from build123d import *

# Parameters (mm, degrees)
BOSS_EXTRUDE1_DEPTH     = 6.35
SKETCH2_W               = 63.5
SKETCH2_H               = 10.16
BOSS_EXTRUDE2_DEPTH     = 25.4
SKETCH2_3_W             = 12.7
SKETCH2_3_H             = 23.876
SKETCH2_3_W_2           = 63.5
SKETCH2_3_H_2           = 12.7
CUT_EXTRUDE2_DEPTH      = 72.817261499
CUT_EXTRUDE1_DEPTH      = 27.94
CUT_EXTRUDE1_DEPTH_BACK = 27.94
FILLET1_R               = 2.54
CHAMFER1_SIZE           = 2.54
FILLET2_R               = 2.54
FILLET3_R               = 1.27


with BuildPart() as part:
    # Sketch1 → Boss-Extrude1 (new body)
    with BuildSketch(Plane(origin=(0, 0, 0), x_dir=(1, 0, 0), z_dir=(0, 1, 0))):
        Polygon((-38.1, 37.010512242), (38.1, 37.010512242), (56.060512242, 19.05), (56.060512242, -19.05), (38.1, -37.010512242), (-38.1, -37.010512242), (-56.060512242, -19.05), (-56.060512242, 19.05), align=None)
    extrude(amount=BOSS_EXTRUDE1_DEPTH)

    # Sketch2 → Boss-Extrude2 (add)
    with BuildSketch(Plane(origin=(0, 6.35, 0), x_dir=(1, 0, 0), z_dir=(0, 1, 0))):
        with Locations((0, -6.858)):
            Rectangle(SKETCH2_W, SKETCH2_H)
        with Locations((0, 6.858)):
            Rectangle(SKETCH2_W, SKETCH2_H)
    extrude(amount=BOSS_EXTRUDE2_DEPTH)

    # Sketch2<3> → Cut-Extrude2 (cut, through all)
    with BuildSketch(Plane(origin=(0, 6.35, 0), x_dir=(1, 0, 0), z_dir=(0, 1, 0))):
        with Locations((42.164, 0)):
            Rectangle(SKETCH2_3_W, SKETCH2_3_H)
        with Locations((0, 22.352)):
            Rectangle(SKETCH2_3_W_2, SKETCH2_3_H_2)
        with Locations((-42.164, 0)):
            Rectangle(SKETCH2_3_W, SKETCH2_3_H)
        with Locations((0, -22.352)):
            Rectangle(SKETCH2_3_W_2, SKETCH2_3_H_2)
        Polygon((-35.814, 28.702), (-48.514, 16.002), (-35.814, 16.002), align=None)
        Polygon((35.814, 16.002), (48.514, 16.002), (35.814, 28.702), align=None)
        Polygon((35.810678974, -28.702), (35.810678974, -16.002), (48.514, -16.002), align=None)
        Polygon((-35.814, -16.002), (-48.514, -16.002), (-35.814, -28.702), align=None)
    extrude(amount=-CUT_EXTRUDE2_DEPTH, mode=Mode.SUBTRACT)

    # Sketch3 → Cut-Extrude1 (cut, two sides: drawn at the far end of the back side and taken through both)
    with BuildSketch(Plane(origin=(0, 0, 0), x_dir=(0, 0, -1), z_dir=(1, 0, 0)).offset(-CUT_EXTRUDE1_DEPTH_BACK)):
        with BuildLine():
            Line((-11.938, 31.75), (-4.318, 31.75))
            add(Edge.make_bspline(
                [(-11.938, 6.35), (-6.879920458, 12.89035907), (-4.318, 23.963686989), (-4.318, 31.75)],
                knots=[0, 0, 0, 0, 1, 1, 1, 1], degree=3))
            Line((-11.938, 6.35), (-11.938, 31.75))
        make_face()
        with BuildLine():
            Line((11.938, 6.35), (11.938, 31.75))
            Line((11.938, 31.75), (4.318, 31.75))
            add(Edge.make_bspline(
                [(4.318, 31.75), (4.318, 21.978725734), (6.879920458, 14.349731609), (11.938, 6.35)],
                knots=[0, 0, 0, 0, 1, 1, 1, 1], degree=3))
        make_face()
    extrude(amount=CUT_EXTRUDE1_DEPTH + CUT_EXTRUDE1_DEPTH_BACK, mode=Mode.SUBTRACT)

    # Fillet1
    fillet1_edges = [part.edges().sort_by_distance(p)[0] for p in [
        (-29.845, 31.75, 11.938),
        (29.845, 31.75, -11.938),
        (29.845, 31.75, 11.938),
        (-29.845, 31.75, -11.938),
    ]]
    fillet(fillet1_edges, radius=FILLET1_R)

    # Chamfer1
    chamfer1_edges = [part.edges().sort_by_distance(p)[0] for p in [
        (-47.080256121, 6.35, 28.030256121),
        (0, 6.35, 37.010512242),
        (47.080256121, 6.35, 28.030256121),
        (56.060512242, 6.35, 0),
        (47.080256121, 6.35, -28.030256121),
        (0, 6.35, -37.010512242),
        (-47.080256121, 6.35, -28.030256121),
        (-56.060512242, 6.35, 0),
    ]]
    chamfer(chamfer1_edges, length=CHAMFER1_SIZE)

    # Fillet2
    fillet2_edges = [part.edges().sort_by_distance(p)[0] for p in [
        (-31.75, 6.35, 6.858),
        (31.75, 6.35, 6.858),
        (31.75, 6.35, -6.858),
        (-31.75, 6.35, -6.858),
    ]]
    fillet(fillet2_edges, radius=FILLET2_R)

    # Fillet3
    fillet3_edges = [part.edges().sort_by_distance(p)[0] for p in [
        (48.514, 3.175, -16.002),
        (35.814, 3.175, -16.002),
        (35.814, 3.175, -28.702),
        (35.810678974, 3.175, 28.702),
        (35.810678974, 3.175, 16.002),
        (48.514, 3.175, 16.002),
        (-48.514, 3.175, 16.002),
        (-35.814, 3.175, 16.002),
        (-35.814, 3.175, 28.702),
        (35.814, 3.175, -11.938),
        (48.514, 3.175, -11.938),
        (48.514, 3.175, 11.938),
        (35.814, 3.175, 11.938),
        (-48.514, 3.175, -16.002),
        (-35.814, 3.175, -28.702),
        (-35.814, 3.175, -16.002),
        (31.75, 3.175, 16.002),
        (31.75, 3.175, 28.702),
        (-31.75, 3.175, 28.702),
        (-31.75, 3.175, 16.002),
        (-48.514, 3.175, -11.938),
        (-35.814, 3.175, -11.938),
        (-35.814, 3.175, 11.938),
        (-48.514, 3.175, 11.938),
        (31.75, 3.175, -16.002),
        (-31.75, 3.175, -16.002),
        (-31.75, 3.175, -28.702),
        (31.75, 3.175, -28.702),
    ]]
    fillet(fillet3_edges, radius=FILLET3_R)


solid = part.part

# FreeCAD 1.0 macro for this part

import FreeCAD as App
import Part
import Sketcher
Q = App.Units.Quantity


def edges_at(feature, points):
    """Names of the edges that pass closest to the given points."""
    edges = feature.Shape.Edges
    near = lambda p: min(range(len(edges)), key=lambda i: edges[i].distToShape(Part.Vertex(*p))[0])
    return sorted({f"Edge{near(p) + 1}" for p in points})

doc = App.newDocument("Part")
body = doc.addObject("PartDesign::Body", "Body")

# Sketch on XZ plane
sketch1 = body.newObject("Sketcher::SketchObject", "Sketch")
sketch1.AttachmentSupport = (doc.getObject("XZ_Plane"), [""])
sketch1.MapMode = "FlatFace"
sketch1.addGeometry([
    Part.LineSegment(App.Vector(38, -37, 0), App.Vector(-38, -37, 0)),  # 0
    Part.LineSegment(App.Vector(-38, -37, 0), App.Vector(-56, -19, 0)),  # 1
    Part.LineSegment(App.Vector(-56, -19, 0), App.Vector(-56, 19, 0)),  # 2
    Part.LineSegment(App.Vector(-56, 19, 0), App.Vector(-38, 37, 0)),  # 3
    Part.LineSegment(App.Vector(-38, 37, 0), App.Vector(38, 37, 0)),  # 4
    Part.LineSegment(App.Vector(38, 37, 0), App.Vector(56, 19, 0)),  # 5
    Part.LineSegment(App.Vector(56, 19, 0), App.Vector(56, -19, 0)),  # 6
    Part.LineSegment(App.Vector(56, -19, 0), App.Vector(38, -37, 0)),  # 7
], False)
sketch1.addConstraint([
    Sketcher.Constraint("Coincident", 0, 2, 1, 1),
    Sketcher.Constraint("Coincident", 1, 2, 2, 1),
    Sketcher.Constraint("Coincident", 2, 2, 3, 1),
    Sketcher.Constraint("Coincident", 3, 2, 4, 1),
    Sketcher.Constraint("Coincident", 4, 2, 5, 1),
    Sketcher.Constraint("Coincident", 5, 2, 6, 1),
    Sketcher.Constraint("Coincident", 6, 2, 7, 1),
    Sketcher.Constraint("Coincident", 7, 2, 0, 1),
    Sketcher.Constraint("Horizontal", 0),
    Sketcher.Constraint("Vertical", 2),
    Sketcher.Constraint("Horizontal", 4),
    Sketcher.Constraint("Vertical", 6),
    Sketcher.Constraint("Symmetric", 0, 2, 4, 2, -1, 1),
    Sketcher.Constraint("Symmetric", 1, 2, 5, 2, -1, 1),
    Sketcher.Constraint("Perpendicular", 1, 3),
    Sketcher.Constraint("Perpendicular", 5, 7),
    Sketcher.Constraint("Horizontal", 2, 2, 5, 2),
    Sketcher.Constraint("Horizontal", 1, 2, 6, 2),
    Sketcher.Constraint("Vertical", 0, 2, 3, 2),
    Sketcher.Constraint("DistanceX", 0, 2, 0, 1, Q("3 in")),
    Sketcher.Constraint("Distance", 1, Q("1 in")),
    Sketcher.Constraint("DistanceY", 2, 1, 2, 2, Q("1.5 in")),
])
pad1 = body.newObject("PartDesign::Pad", "Pad")
pad1.Profile = sketch1
pad1.Length = Q("0.25 in")
pad1.Reversed = True

# Sketch on XZ plane
sketch2 = body.newObject("Sketcher::SketchObject", "Sketch001")
sketch2.AttachmentSupport = (doc.getObject("XZ_Plane"), [""])
sketch2.MapMode = "FlatFace"
sketch2.AttachmentOffset = App.Placement(App.Vector(0, 0, -0.25 * 25.4), App.Rotation())
sketch2.addGeometry([
    Part.LineSegment(App.Vector(-32, 2, 0), App.Vector(-32, 12, 0)),  # 0
    Part.LineSegment(App.Vector(-32, 12, 0), App.Vector(32, 12, 0)),  # 1
    Part.LineSegment(App.Vector(32, 12, 0), App.Vector(32, 2, 0)),  # 2
    Part.LineSegment(App.Vector(32, 2, 0), App.Vector(-32, 2, 0)),  # 3
    Part.LineSegment(App.Vector(-32, -12, 0), App.Vector(-32, -2, 0)),  # 4
    Part.LineSegment(App.Vector(-32, -2, 0), App.Vector(32, -2, 0)),  # 5
    Part.LineSegment(App.Vector(32, -2, 0), App.Vector(32, -12, 0)),  # 6
    Part.LineSegment(App.Vector(32, -12, 0), App.Vector(-32, -12, 0)),  # 7
], False)
sketch2.addConstraint([
    Sketcher.Constraint("Coincident", 0, 2, 1, 1),
    Sketcher.Constraint("Coincident", 1, 2, 2, 1),
    Sketcher.Constraint("Coincident", 2, 2, 3, 1),
    Sketcher.Constraint("Coincident", 3, 2, 0, 1),
    Sketcher.Constraint("Coincident", 4, 2, 5, 1),
    Sketcher.Constraint("Coincident", 5, 2, 6, 1),
    Sketcher.Constraint("Coincident", 6, 2, 7, 1),
    Sketcher.Constraint("Coincident", 7, 2, 4, 1),
    Sketcher.Constraint("Vertical", 0),
    Sketcher.Constraint("Horizontal", 1),
    Sketcher.Constraint("Vertical", 2),
    Sketcher.Constraint("Horizontal", 3),
    Sketcher.Constraint("Vertical", 4),
    Sketcher.Constraint("Horizontal", 5),
    Sketcher.Constraint("Vertical", 6),
    Sketcher.Constraint("Horizontal", 7),
    Sketcher.Constraint("Symmetric", 2, 2, 4, 2, -1, 1),
    Sketcher.Constraint("Symmetric", 0, 2, 6, 2, -1, 1),
    Sketcher.Constraint("Vertical", 3, 2, 4, 2),
    Sketcher.Constraint("DistanceX", 1, 1, 1, 2, Q("2.5 in")),
    Sketcher.Constraint("DistanceY", 0, 1, 0, 2, Q("0.4 in")),
    Sketcher.Constraint("DistanceY", -1, 1, 0, 2, Q("0.47 in")),
])
pad2 = body.newObject("PartDesign::Pad", "Pad001")
pad2.Profile = sketch2
pad2.Length = Q("1 in")
pad2.Reversed = True

# Sketch on XZ plane
sketch3 = body.newObject("Sketcher::SketchObject", "Sketch002")
sketch3.AttachmentSupport = (doc.getObject("XZ_Plane"), [""])
sketch3.MapMode = "FlatFace"
sketch3.AttachmentOffset = App.Placement(App.Vector(0, 0, -0.25 * 25.4), App.Rotation())
sketch3.addGeometry([
    Part.LineSegment(App.Vector(36, -12, 0), App.Vector(36, 12, 0)),  # 0
    Part.LineSegment(App.Vector(36, 12, 0), App.Vector(49, 12, 0)),  # 1
    Part.LineSegment(App.Vector(49, 12, 0), App.Vector(49, -12, 0)),  # 2
    Part.LineSegment(App.Vector(49, -12, 0), App.Vector(36, -12, 0)),  # 3
    Part.LineSegment(App.Vector(-32, -29, 0), App.Vector(-32, -16, 0)),  # 4
    Part.LineSegment(App.Vector(-32, -16, 0), App.Vector(32, -16, 0)),  # 5
    Part.LineSegment(App.Vector(32, -16, 0), App.Vector(32, -29, 0)),  # 6
    Part.LineSegment(App.Vector(32, -29, 0), App.Vector(-32, -29, 0)),  # 7
    Part.LineSegment(App.Vector(-49, -12, 0), App.Vector(-49, 12, 0)),  # 8
    Part.LineSegment(App.Vector(-49, 12, 0), App.Vector(-36, 12, 0)),  # 9
    Part.LineSegment(App.Vector(-36, 12, 0), App.Vector(-36, -12, 0)),  # 10
    Part.LineSegment(App.Vector(-36, -12, 0), App.Vector(-49, -12, 0)),  # 11
    Part.LineSegment(App.Vector(-32, 16, 0), App.Vector(-32, 29, 0)),  # 12
    Part.LineSegment(App.Vector(-32, 29, 0), App.Vector(32, 29, 0)),  # 13
    Part.LineSegment(App.Vector(32, 29, 0), App.Vector(32, 16, 0)),  # 14
    Part.LineSegment(App.Vector(32, 16, 0), App.Vector(-32, 16, 0)),  # 15
    Part.LineSegment(App.Vector(-36, -29, 0), App.Vector(-49, -16, 0)),  # 16
    Part.LineSegment(App.Vector(-49, -16, 0), App.Vector(-36, -16, 0)),  # 17
    Part.LineSegment(App.Vector(-36, -16, 0), App.Vector(-36, -29, 0)),  # 18
    Part.LineSegment(App.Vector(36, -16, 0), App.Vector(49, -16, 0)),  # 19
    Part.LineSegment(App.Vector(49, -16, 0), App.Vector(36, -29, 0)),  # 20
    Part.LineSegment(App.Vector(36, -29, 0), App.Vector(36, -16, 0)),  # 21
    Part.LineSegment(App.Vector(36, 16, 0), App.Vector(36, 29, 0)),  # 22
    Part.LineSegment(App.Vector(36, 29, 0), App.Vector(49, 16, 0)),  # 23
    Part.LineSegment(App.Vector(49, 16, 0), App.Vector(36, 16, 0)),  # 24
    Part.LineSegment(App.Vector(-36, 16, 0), App.Vector(-49, 16, 0)),  # 25
    Part.LineSegment(App.Vector(-49, 16, 0), App.Vector(-36, 29, 0)),  # 26
    Part.LineSegment(App.Vector(-36, 29, 0), App.Vector(-36, 16, 0)),  # 27
], False)
sketch3.addConstraint([
    Sketcher.Constraint("Coincident", 0, 2, 1, 1),
    Sketcher.Constraint("Coincident", 1, 2, 2, 1),
    Sketcher.Constraint("Coincident", 2, 2, 3, 1),
    Sketcher.Constraint("Coincident", 3, 2, 0, 1),
    Sketcher.Constraint("Coincident", 4, 2, 5, 1),
    Sketcher.Constraint("Coincident", 5, 2, 6, 1),
    Sketcher.Constraint("Coincident", 6, 2, 7, 1),
    Sketcher.Constraint("Coincident", 7, 2, 4, 1),
    Sketcher.Constraint("Coincident", 8, 2, 9, 1),
    Sketcher.Constraint("Coincident", 9, 2, 10, 1),
    Sketcher.Constraint("Coincident", 10, 2, 11, 1),
    Sketcher.Constraint("Coincident", 11, 2, 8, 1),
    Sketcher.Constraint("Coincident", 12, 2, 13, 1),
    Sketcher.Constraint("Coincident", 13, 2, 14, 1),
    Sketcher.Constraint("Coincident", 14, 2, 15, 1),
    Sketcher.Constraint("Coincident", 15, 2, 12, 1),
    Sketcher.Constraint("Coincident", 16, 2, 17, 1),
    Sketcher.Constraint("Coincident", 17, 2, 18, 1),
    Sketcher.Constraint("Coincident", 18, 2, 16, 1),
    Sketcher.Constraint("Coincident", 19, 2, 20, 1),
    Sketcher.Constraint("Coincident", 20, 2, 21, 1),
    Sketcher.Constraint("Coincident", 21, 2, 19, 1),
    Sketcher.Constraint("Coincident", 22, 2, 23, 1),
    Sketcher.Constraint("Coincident", 23, 2, 24, 1),
    Sketcher.Constraint("Coincident", 24, 2, 22, 1),
    Sketcher.Constraint("Coincident", 25, 2, 26, 1),
    Sketcher.Constraint("Coincident", 26, 2, 27, 1),
    Sketcher.Constraint("Coincident", 27, 2, 25, 1),
    Sketcher.Constraint("Vertical", 0),
    Sketcher.Constraint("Horizontal", 1),
    Sketcher.Constraint("Vertical", 2),
    Sketcher.Constraint("Horizontal", 3),
    Sketcher.Constraint("Vertical", 4),
    Sketcher.Constraint("Horizontal", 5),
    Sketcher.Constraint("Vertical", 6),
    Sketcher.Constraint("Horizontal", 7),
    Sketcher.Constraint("Vertical", 8),
    Sketcher.Constraint("Horizontal", 9),
    Sketcher.Constraint("Vertical", 10),
    Sketcher.Constraint("Horizontal", 11),
    Sketcher.Constraint("Vertical", 12),
    Sketcher.Constraint("Horizontal", 13),
    Sketcher.Constraint("Vertical", 14),
    Sketcher.Constraint("Horizontal", 15),
    Sketcher.Constraint("Horizontal", 17),
    Sketcher.Constraint("Vertical", 18),
    Sketcher.Constraint("Horizontal", 19),
    Sketcher.Constraint("Vertical", 21),
    Sketcher.Constraint("Vertical", 22),
    Sketcher.Constraint("Horizontal", 24),
    Sketcher.Constraint("Horizontal", 25),
    Sketcher.Constraint("Vertical", 27),
    Sketcher.Constraint("Symmetric", 2, 2, 8, 2, -1, 1),
    Sketcher.Constraint("Symmetric", 0, 2, 10, 2, -1, 1),
    Sketcher.Constraint("Symmetric", 6, 2, 12, 2, -1, 1),
    Sketcher.Constraint("Symmetric", 4, 2, 14, 2, -1, 1),
    Sketcher.Constraint("Symmetric", 16, 2, 23, 2, -1, 1),
    Sketcher.Constraint("Symmetric", 19, 2, 25, 2, -1, 1),
    Sketcher.Constraint("Symmetric", 20, 2, 26, 2, -1, 1),
    Sketcher.Constraint("Symmetric", 16, 2, 19, 2, -2),
    Sketcher.Constraint("Symmetric", 18, 2, 20, 2, -2),
    Sketcher.Constraint("Perpendicular", 16, 20),
    Sketcher.Constraint("Horizontal", 1, 2, 8, 2),
    Sketcher.Constraint("Horizontal", 5, 2, 16, 2),
    Sketcher.Constraint("Horizontal", 7, 2, 18, 2),
    Sketcher.Constraint("Horizontal", 13, 2, 22, 2),
    Sketcher.Constraint("Vertical", 7, 2, 12, 2),
    Sketcher.Constraint("Vertical", 11, 2, 16, 2),
    Sketcher.Constraint("Vertical", 10, 2, 17, 2),
    Sketcher.Constraint("DistanceX", 1, 1, 1, 2, Q("0.5 in")),
    Sketcher.Constraint("DistanceX", 5, 1, 5, 2, Q("2.5 in")),
    Sketcher.Constraint("DistanceY", 0, 1, 0, 2, Q("0.94 in")),
    Sketcher.Constraint("DistanceY", 4, 2, 0, 2, Q("1.1 in")),
    Sketcher.Constraint("DistanceX", -1, 1, 0, 2, Q("1.41 in")),
    Sketcher.Constraint("DistanceX", 24, 2, 24, 1, Q("12.703321 mm")),
])
pocket1 = body.newObject("PartDesign::Pocket", "Pocket")
pocket1.Profile = sketch3
pocket1.Type = "ThroughAll"
pocket1.Reversed = True

# Sketch on YZ plane
sketch4 = body.newObject("Sketcher::SketchObject", "Sketch003")
sketch4.AttachmentSupport = (doc.getObject("YZ_Plane"), [""])
sketch4.MapMode = "FlatFace"
sketch4.addGeometry([
    Part.LineSegment(App.Vector(31.75, 4.318, 0), App.Vector(31.75, 11.938, 0)),  # 0
    Part.LineSegment(App.Vector(31.75, 11.938, 0), App.Vector(6.35, 11.938, 0)),  # 1
    Part.BSplineCurve([App.Vector(6.35, 11.938, 0), App.Vector(12.890359, 6.87992, 0), App.Vector(23.963687, 4.318, 0), App.Vector(31.75, 4.318, 0)], [4, 4], [0, 1], False, 3, [1, 1, 1, 1], False),  # 2
    Part.LineSegment(App.Vector(6.35, -11.938, 0), App.Vector(31.75, -11.938, 0)),  # 3
    Part.LineSegment(App.Vector(31.75, -11.938, 0), App.Vector(31.75, -4.318, 0)),  # 4
    Part.BSplineCurve([App.Vector(31.75, -4.318, 0), App.Vector(21.978726, -4.318, 0), App.Vector(14.349732, -6.87992, 0), App.Vector(6.35, -11.938, 0)], [4, 4], [0, 1], False, 3, [1, 1, 1, 1], False),  # 5
], False)
sketch4.addConstraint([
    Sketcher.Constraint("Block", 2),
    Sketcher.Constraint("Block", 5),
    Sketcher.Constraint("Coincident", 0, 2, 1, 1),
    Sketcher.Constraint("Coincident", 1, 2, 2, 1),
    Sketcher.Constraint("Coincident", 2, 2, 0, 1),
    Sketcher.Constraint("Coincident", 3, 2, 4, 1),
    Sketcher.Constraint("Coincident", 4, 2, 5, 1),
    Sketcher.Constraint("Coincident", 5, 2, 3, 1),
    Sketcher.Constraint("Vertical", 0),
    Sketcher.Constraint("Horizontal", 1),
    Sketcher.Constraint("Horizontal", 3),
    Sketcher.Constraint("Vertical", 4),
])
pocket2 = body.newObject("PartDesign::Pocket", "Pocket001")
pocket2.Profile = sketch4
pocket2.Type = "TwoLengths"
pocket2.Length = Q("1.1 in")
pocket2.Length2 = Q("1.1 in")
pocket2.Reversed = True
doc.recompute()

fillet = body.newObject("PartDesign::Fillet", "Fillet")
fillet.Base = (pocket2, edges_at(pocket2, [
    (-29.845, 31.75, 11.938),
    (29.845, 31.75, -11.938),
    (29.845, 31.75, 11.938),
    (-29.845, 31.75, -11.938),
]))
fillet.Radius = Q("0.1 in")
doc.recompute()

chamfer = body.newObject("PartDesign::Chamfer", "Chamfer")
chamfer.Base = (fillet, edges_at(fillet, [
    (-47.08, 6.35, 28.03),
    (0, 6.35, 37.011),
    (47.08, 6.35, 28.03),
    (56.061, 6.35, 0),
    (47.08, 6.35, -28.03),
    (0, 6.35, -37.011),
    (-47.08, 6.35, -28.03),
    (-56.061, 6.35, 0),
]))
chamfer.Size = Q("0.1 in")
doc.recompute()

fillet2 = body.newObject("PartDesign::Fillet", "Fillet001")
fillet2.Base = (chamfer, edges_at(chamfer, [
    (-31.75, 6.35, 6.858),
    (31.75, 6.35, 6.858),
    (31.75, 6.35, -6.858),
    (-31.75, 6.35, -6.858),
]))
fillet2.Radius = Q("0.1 in")
doc.recompute()

fillet3 = body.newObject("PartDesign::Fillet", "Fillet002")
fillet3.Base = (fillet2, edges_at(fillet2, [
    (48.514, 3.175, -16.002),
    (35.814, 3.175, -16.002),
    (35.814, 3.175, -28.702),
    (35.811, 3.175, 28.702),
    (35.811, 3.175, 16.002),
    (48.514, 3.175, 16.002),
    (-48.514, 3.175, 16.002),
    (-35.814, 3.175, 16.002),
    (-35.814, 3.175, 28.702),
    (35.814, 3.175, -11.938),
    (48.514, 3.175, -11.938),
    (48.514, 3.175, 11.938),
    (35.814, 3.175, 11.938),
    (-48.514, 3.175, -16.002),
    (-35.814, 3.175, -28.702),
    (-35.814, 3.175, -16.002),
    (31.75, 3.175, 16.002),
    (31.75, 3.175, 28.702),
    (-31.75, 3.175, 28.702),
    (-31.75, 3.175, 16.002),
    (-48.514, 3.175, -11.938),
    (-35.814, 3.175, -11.938),
    (-35.814, 3.175, 11.938),
    (-48.514, 3.175, 11.938),
    (31.75, 3.175, -16.002),
    (-31.75, 3.175, -16.002),
    (-31.75, 3.175, -28.702),
    (31.75, 3.175, -28.702),
]))
fillet3.Radius = Q("0.05 in")

doc.recompute()
